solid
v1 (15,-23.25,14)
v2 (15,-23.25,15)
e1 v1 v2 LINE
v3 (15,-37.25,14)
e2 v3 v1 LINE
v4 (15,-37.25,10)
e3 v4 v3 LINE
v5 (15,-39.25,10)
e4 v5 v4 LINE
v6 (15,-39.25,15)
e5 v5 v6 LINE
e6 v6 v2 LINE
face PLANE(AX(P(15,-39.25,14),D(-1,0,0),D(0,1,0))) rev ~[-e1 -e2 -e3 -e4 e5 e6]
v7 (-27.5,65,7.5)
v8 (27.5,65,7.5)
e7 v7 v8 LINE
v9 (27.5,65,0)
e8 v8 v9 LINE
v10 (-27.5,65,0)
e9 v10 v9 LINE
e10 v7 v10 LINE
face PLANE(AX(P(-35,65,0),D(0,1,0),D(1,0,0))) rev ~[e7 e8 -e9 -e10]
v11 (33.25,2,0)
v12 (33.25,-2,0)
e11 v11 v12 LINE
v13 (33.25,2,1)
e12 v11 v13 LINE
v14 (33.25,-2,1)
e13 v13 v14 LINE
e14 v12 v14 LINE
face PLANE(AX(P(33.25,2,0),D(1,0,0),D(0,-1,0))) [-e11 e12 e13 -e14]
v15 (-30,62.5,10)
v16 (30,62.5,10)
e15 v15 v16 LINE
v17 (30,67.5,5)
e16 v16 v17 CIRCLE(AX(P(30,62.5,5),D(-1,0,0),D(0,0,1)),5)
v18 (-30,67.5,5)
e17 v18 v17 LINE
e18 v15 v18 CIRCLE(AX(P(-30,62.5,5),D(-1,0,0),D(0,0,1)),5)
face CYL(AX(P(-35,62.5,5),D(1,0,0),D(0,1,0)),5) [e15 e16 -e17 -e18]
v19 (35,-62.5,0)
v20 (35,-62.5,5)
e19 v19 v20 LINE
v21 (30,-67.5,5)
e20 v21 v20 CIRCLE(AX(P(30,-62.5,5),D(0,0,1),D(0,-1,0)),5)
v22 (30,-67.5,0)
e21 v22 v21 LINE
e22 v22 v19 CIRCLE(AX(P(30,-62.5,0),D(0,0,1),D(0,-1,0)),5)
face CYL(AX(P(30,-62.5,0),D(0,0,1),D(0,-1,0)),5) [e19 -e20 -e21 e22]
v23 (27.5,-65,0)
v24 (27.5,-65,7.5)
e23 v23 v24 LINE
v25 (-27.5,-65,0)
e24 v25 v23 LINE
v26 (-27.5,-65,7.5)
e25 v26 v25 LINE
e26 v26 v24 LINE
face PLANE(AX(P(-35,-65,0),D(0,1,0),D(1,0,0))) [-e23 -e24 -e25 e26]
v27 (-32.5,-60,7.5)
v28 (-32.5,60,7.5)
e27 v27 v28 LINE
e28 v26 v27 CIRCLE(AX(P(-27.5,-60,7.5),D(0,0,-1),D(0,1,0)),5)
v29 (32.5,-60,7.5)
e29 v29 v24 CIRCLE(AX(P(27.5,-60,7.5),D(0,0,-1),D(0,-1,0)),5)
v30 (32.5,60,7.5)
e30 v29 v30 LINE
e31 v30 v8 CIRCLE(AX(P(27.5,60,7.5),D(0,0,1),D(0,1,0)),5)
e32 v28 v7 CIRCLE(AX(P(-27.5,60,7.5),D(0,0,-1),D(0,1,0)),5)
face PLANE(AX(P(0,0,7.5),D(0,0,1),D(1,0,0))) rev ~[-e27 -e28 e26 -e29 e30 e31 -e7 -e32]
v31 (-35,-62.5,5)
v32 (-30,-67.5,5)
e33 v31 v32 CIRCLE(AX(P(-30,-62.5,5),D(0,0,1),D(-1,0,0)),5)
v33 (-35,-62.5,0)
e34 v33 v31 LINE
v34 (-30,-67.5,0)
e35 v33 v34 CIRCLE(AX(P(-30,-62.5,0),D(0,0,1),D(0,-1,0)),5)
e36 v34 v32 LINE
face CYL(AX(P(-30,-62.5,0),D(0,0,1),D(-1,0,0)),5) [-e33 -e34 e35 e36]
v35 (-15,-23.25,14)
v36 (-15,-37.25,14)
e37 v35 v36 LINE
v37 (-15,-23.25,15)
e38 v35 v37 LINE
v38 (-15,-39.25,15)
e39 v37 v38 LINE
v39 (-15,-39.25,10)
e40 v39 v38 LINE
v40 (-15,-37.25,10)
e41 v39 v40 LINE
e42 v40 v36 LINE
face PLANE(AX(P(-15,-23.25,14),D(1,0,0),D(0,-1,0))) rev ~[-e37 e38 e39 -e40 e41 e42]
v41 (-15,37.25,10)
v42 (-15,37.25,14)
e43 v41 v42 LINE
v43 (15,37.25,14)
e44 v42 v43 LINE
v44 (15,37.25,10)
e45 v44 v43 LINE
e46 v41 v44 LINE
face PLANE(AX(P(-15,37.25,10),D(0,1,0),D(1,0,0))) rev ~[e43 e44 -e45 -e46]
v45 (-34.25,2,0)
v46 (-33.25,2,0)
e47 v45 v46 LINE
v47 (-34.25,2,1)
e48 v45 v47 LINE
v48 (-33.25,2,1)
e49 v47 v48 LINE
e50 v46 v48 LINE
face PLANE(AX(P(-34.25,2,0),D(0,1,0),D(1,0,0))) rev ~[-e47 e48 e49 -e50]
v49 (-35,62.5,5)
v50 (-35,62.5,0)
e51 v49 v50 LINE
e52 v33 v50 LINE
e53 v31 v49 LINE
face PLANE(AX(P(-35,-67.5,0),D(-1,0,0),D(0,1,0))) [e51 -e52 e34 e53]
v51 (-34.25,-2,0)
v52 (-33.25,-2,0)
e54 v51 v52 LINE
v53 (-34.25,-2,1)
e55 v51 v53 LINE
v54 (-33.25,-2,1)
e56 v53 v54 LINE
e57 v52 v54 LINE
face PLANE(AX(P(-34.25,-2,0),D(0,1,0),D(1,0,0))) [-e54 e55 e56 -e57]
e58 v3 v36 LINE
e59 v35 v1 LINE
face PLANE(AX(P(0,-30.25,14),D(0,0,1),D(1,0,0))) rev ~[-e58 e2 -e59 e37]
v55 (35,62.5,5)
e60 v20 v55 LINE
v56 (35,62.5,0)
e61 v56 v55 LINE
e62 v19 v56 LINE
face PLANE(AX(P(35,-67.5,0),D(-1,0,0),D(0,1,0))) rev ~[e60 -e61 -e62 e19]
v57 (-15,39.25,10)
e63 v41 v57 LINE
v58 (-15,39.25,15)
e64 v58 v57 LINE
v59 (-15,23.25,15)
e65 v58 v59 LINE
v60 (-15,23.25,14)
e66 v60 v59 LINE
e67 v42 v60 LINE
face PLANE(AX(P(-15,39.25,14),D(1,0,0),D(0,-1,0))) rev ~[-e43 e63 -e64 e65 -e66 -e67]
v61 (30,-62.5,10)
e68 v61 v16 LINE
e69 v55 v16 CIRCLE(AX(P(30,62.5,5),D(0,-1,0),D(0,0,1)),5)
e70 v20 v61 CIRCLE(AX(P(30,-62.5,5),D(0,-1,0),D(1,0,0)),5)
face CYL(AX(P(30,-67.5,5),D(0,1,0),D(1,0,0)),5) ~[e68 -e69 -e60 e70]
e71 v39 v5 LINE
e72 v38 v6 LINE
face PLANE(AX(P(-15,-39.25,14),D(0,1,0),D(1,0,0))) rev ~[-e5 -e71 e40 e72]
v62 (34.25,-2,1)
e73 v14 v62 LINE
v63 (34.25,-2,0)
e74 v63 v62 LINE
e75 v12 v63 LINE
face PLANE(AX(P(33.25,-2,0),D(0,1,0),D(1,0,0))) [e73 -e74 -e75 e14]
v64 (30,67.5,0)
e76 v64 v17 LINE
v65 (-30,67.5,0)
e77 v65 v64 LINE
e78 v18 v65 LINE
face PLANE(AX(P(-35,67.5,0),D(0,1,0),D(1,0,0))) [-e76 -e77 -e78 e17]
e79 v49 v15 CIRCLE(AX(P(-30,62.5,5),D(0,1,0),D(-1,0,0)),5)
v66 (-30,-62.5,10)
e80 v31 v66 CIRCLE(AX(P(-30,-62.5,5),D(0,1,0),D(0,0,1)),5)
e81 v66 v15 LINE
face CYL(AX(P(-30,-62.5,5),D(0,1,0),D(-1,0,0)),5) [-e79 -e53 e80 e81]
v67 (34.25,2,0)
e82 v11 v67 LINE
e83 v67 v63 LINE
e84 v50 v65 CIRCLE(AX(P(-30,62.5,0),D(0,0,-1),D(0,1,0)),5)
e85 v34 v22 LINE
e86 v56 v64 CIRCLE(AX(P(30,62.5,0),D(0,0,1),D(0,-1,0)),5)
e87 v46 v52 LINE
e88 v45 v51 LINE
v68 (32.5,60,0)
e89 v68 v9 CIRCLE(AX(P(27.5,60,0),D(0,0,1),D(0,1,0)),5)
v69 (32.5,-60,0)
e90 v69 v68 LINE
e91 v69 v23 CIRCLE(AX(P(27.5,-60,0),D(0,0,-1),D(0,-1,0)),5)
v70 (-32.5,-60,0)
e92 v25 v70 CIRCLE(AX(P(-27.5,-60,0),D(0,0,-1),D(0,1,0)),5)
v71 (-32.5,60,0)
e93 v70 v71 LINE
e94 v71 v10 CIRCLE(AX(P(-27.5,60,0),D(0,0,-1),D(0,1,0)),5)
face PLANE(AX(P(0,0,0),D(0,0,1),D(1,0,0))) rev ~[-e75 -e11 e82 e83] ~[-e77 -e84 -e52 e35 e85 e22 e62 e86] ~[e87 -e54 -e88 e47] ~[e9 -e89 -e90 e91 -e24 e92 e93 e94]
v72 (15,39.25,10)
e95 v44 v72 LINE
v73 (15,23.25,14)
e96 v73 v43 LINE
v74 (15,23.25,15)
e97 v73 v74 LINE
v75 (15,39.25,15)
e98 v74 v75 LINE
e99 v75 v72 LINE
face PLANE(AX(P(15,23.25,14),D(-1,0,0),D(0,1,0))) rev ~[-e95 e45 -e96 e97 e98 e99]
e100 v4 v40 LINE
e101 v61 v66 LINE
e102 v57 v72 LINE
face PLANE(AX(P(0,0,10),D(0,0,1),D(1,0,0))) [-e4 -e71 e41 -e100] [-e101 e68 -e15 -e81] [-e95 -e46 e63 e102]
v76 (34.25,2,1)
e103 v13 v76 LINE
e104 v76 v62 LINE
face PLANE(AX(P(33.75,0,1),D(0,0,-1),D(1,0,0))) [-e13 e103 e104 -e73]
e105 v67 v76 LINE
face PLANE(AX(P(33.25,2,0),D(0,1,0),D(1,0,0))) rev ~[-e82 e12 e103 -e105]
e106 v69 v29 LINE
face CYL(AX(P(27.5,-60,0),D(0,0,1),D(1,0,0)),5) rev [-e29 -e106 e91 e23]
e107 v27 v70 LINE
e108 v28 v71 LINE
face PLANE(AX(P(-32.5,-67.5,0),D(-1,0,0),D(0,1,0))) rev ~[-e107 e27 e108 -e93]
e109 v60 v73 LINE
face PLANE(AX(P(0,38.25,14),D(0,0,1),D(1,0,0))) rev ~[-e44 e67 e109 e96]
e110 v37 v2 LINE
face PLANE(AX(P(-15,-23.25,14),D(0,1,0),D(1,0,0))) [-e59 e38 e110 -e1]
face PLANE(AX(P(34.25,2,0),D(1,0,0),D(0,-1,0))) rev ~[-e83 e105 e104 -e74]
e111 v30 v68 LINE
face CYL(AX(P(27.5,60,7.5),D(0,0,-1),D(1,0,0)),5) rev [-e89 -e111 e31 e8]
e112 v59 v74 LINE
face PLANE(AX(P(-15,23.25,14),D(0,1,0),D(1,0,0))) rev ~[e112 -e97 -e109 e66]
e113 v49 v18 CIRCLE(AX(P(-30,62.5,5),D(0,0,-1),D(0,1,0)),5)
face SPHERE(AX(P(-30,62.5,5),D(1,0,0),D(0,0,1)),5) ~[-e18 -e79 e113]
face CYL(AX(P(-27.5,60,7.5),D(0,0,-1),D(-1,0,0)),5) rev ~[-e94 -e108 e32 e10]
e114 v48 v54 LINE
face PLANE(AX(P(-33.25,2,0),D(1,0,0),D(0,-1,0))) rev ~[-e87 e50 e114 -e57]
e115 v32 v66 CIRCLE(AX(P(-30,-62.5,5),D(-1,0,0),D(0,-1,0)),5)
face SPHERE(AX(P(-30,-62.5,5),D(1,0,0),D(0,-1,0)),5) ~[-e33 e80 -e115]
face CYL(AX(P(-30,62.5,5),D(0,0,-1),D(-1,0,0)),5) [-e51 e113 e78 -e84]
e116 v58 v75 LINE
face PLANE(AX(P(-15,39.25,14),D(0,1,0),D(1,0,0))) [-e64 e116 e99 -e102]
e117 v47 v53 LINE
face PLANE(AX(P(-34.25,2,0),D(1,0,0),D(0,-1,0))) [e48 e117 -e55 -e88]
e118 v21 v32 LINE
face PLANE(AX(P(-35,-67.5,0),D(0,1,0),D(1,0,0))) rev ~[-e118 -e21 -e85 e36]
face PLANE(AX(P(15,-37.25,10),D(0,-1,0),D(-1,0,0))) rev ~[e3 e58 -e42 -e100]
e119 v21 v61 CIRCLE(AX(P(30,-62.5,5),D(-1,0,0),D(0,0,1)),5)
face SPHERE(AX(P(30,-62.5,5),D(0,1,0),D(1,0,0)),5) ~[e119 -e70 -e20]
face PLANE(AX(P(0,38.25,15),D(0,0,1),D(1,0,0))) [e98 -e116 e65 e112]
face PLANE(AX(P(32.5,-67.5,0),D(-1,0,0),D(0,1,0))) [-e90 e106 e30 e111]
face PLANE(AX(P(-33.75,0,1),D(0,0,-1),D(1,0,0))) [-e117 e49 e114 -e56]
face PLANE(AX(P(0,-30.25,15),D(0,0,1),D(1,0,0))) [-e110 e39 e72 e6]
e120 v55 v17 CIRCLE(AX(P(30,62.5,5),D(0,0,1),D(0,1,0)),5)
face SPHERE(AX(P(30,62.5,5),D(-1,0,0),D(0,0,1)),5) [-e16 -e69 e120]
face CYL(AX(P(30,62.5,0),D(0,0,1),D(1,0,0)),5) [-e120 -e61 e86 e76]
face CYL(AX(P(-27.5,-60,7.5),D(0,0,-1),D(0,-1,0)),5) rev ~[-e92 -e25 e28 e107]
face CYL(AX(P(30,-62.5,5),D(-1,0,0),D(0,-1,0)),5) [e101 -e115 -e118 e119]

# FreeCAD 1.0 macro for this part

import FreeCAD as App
import Part
import Sketcher

V = App.Vector
Q = App.Units.Quantity


def edges_at(feature, points):
    """Names of the edges that pass closest to the given points."""
    edges = feature.Shape.Edges
    near = lambda p: min(range(len(edges)), key=lambda i: edges[i].distToShape(Part.Vertex(*p))[0])
    return sorted({f"Edge{near(p) + 1}" for p in points})


def faces_at(feature, points):
    """Names of the faces that lie closest to the given points."""
    faces = feature.Shape.Faces
    near = lambda p: min(range(len(faces)), key=lambda i: faces[i].distToShape(Part.Vertex(*p))[0])
    return sorted({f"Face{near(p) + 1}" for p in points})

doc = App.newDocument("Part")
body = doc.addObject("PartDesign::Body", "Body")

# Sketch on XY plane
sketch1 = body.newObject("Sketcher::SketchObject", "Sketch")
sketch1.AttachmentSupport = (doc.getObject("XY_Plane"), [""])
sketch1.MapMode = "FlatFace"
sketch1.addGeometry([
    Part.LineSegment(V(-35, 67.5, 0), V(-35, -67.5, 0)),
    Part.LineSegment(V(-35, -67.5, 0), V(35, -67.5, 0)),
    Part.LineSegment(V(35, -67.5, 0), V(35, 67.5, 0)),
    Part.LineSegment(V(35, 67.5, 0), V(-35, 67.5, 0)),
], False)
sketch1.addConstraint([
    Sketcher.Constraint("Coincident", 0, 2, 1, 1),
    Sketcher.Constraint("Coincident", 1, 2, 2, 1),
    Sketcher.Constraint("Coincident", 2, 2, 3, 1),
    Sketcher.Constraint("Coincident", 3, 2, 0, 1),
    Sketcher.Constraint("Vertical", 0),
    Sketcher.Constraint("Horizontal", 1),
    Sketcher.Constraint("Vertical", 2),
    Sketcher.Constraint("Horizontal", 3),
    Sketcher.Constraint("Symmetric", 0, 2, 2, 2, -1, 1),
    Sketcher.Constraint("DistanceX", 1, 1, 1, 2, Q("70 mm")),
    Sketcher.Constraint("DistanceY", 0, 2, 0, 1, Q("135 mm")),
])
pad1 = body.newObject("PartDesign::Pad", "Pad")
pad1.Profile = sketch1
pad1.Length = 10
doc.recompute()

thickness = body.newObject("PartDesign::Thickness", "Thickness")
thickness.Base = (pad1, faces_at(pad1, [(0, 0, 0)]))
thickness.Value = 2.5
thickness.Reversed = True
thickness.Join = "Arc"
doc.recompute()

fillet = body.newObject("PartDesign::Fillet", "Fillet")
fillet.Base = (thickness, edges_at(thickness, [(0, 67.5, 10), (35, 0, 10), (35, 67.5, 5)]))
fillet.Radius = 5
doc.recompute()

fillet2 = body.newObject("PartDesign::Fillet", "Fillet001")
fillet2.Base = (fillet, edges_at(fillet, [(33.536, -67.5, 8.536), (-2.5, -67.5, 10)]))
fillet2.Radius = 5
doc.recompute()

fillet3 = body.newObject("PartDesign::Fillet", "Fillet002")
fillet3.Base = (fillet2, edges_at(fillet2, [(-35, 0, 10), (-35, -66.036, 8.536)]))
fillet3.Radius = 5
doc.recompute()

fillet4 = body.newObject("PartDesign::Fillet", "Fillet003")
fillet4.Base = (fillet3, edges_at(fillet3, [
    (32.5, 65, 3.75),
    (-32.5, 65, 3.75),
    (32.5, -65, 3.75),
    (-32.5, -65, 3.75),
]))
fillet4.Radius = 5

# Sketch on XY plane
sketch2 = body.newObject("Sketcher::SketchObject", "Sketch001")
sketch2.AttachmentSupport = (doc.getObject("XY_Plane"), [""])
sketch2.MapMode = "FlatFace"
sketch2.addGeometry([
    Part.LineSegment(V(-34.25, -2, 0), V(-34.25, 2, 0)),  # 0
    Part.LineSegment(V(-34.25, 2, 0), V(-33.25, 2, 0)),  # 1
    Part.LineSegment(V(-33.25, 2, 0), V(-33.25, -2, 0)),  # 2
    Part.LineSegment(V(-33.25, -2, 0), V(-34.25, -2, 0)),  # 3
    Part.LineSegment(V(33.25, -2, 0), V(33.25, 2, 0)),  # 4
    Part.LineSegment(V(33.25, 2, 0), V(34.25, 2, 0)),  # 5
    Part.LineSegment(V(34.25, 2, 0), V(34.25, -2, 0)),  # 6
    Part.LineSegment(V(34.25, -2, 0), V(33.25, -2, 0)),  # 7
], False)
sketch2.addConstraint([
    Sketcher.Constraint("Coincident", 0, 2, 1, 1),
    Sketcher.Constraint("Coincident", 1, 2, 2, 1),
    Sketcher.Constraint("Coincident", 2, 2, 3, 1),
    Sketcher.Constraint("Coincident", 3, 2, 0, 1),
    Sketcher.Constraint("Coincident", 4, 2, 5, 1),
    Sketcher.Constraint("Coincident", 5, 2, 6, 1),
    Sketcher.Constraint("Coincident", 6, 2, 7, 1),
    Sketcher.Constraint("Coincident", 7, 2, 4, 1),
    Sketcher.Constraint("Vertical", 0),
    Sketcher.Constraint("Horizontal", 1),
    Sketcher.Constraint("Vertical", 2),
    Sketcher.Constraint("Horizontal", 3),
    Sketcher.Constraint("Vertical", 4),
    Sketcher.Constraint("Horizontal", 5),
    Sketcher.Constraint("Vertical", 6),
    Sketcher.Constraint("Horizontal", 7),
    Sketcher.Constraint("Symmetric", 2, 2, 4, 2, -1, 1),
    Sketcher.Constraint("Symmetric", 0, 2, 6, 2, -1, 1),
    Sketcher.Constraint("Horizontal", 1, 2, 4, 2),
    Sketcher.Constraint("DistanceX", 1, 1, 1, 2, Q("1 mm")),
    Sketcher.Constraint("DistanceY", 0, 1, 0, 2, Q("4 mm")),
    Sketcher.Constraint("DistanceX", 1, 2, 4, 2, Q("66.5 mm")),
])
pocket1 = body.newObject("PartDesign::Pocket", "Pocket")
pocket1.Profile = sketch2
pocket1.Length = 1
pocket1.Reversed = True

# Sketch on XY plane
sketch3 = body.newObject("Sketcher::SketchObject", "Sketch002")
sketch3.AttachmentSupport = (doc.getObject("XY_Plane"), [""])
sketch3.MapMode = "FlatFace"
sketch3.AttachmentOffset = App.Placement(V(0, 0, 10), App.Rotation())
sketch3.addGeometry([
    Part.LineSegment(V(-15, 39.25, 0), V(-15, 37.25, 0)),  # 0
    Part.LineSegment(V(-15, 37.25, 0), V(15, 37.25, 0)),  # 1
    Part.LineSegment(V(15, 37.25, 0), V(15, 39.25, 0)),  # 2
    Part.LineSegment(V(15, 39.25, 0), V(-15, 39.25, 0)),  # 3
    Part.LineSegment(V(-15, -37.25, 0), V(-15, -39.25, 0)),  # 4
    Part.LineSegment(V(-15, -39.25, 0), V(15, -39.25, 0)),  # 5
    Part.LineSegment(V(15, -39.25, 0), V(15, -37.25, 0)),  # 6
    Part.LineSegment(V(15, -37.25, 0), V(-15, -37.25, 0)),  # 7
], False)
sketch3.addConstraint([
    Sketcher.Constraint("Coincident", 0, 2, 1, 1),
    Sketcher.Constraint("Coincident", 1, 2, 2, 1),
    Sketcher.Constraint("Coincident", 2, 2, 3, 1),
    Sketcher.Constraint("Coincident", 3, 2, 0, 1),
    Sketcher.Constraint("Coincident", 4, 2, 5, 1),
    Sketcher.Constraint("Coincident", 5, 2, 6, 1),
    Sketcher.Constraint("Coincident", 6, 2, 7, 1),
    Sketcher.Constraint("Coincident", 7, 2, 4, 1),
    Sketcher.Constraint("Vertical", 0),
    Sketcher.Constraint("Horizontal", 1),
    Sketcher.Constraint("Vertical", 2),
    Sketcher.Constraint("Horizontal", 3),
    Sketcher.Constraint("Vertical", 4),
    Sketcher.Constraint("Horizontal", 5),
    Sketcher.Constraint("Vertical", 6),
    Sketcher.Constraint("Horizontal", 7),
    Sketcher.Constraint("Symmetric", 2, 2, 4, 2, -1, 1),
    Sketcher.Constraint("Symmetric", 0, 2, 6, 2, -1, 1),
    Sketcher.Constraint("Vertical", 3, 2, 4, 2),
    Sketcher.Constraint("DistanceX", 1, 1, 1, 2, Q("30 mm")),
    Sketcher.Constraint("DistanceY", 0, 2, 0, 1, Q("2 mm")),
    Sketcher.Constraint("DistanceY", 4, 2, 0, 2, Q("76.5 mm")),
])
pad2 = body.newObject("PartDesign::Pad", "Pad001")
pad2.Profile = sketch3
pad2.Length = 4

# Sketch on XY plane
sketch4 = body.newObject("Sketcher::SketchObject", "Sketch003")
sketch4.AttachmentSupport = (doc.getObject("XY_Plane"), [""])
sketch4.MapMode = "FlatFace"
sketch4.AttachmentOffset = App.Placement(V(0, 0, 14), App.Rotation())
sketch4.addGeometry([
    Part.LineSegment(V(-15, -23.25, 0), V(-15, -39.25, 0)),
    Part.LineSegment(V(-15, -39.25, 0), V(15, -39.25, 0)),
    Part.LineSegment(V(15, -39.25, 0), V(15, -23.25, 0)),
    Part.LineSegment(V(15, -23.25, 0), V(-15, -23.25, 0)),
], False)
sketch4.addConstraint([
    Sketcher.Constraint("Coincident", 0, 2, 1, 1),
    Sketcher.Constraint("Coincident", 1, 2, 2, 1),
    Sketcher.Constraint("Coincident", 2, 2, 3, 1),
    Sketcher.Constraint("Coincident", 3, 2, 0, 1),
    Sketcher.Constraint("Vertical", 0),
    Sketcher.Constraint("Horizontal", 1),
    Sketcher.Constraint("Vertical", 2),
    Sketcher.Constraint("Horizontal", 3),
    Sketcher.Constraint("DistanceX", 1, 1, 1, 2, Q("30 mm")),
    Sketcher.Constraint("DistanceY", 0, 2, 0, 1, Q("16 mm")),
    Sketcher.Constraint("DistanceX", 0, 2, -1, 1, Q("15 mm")),
    Sketcher.Constraint("DistanceY", 0, 2, -1, 1, Q("39.25 mm")),
])
pad3 = body.newObject("PartDesign::Pad", "Pad002")
pad3.Profile = sketch4
pad3.Length = 1

# Sketch on XY plane
sketch5 = body.newObject("Sketcher::SketchObject", "Sketch004")
sketch5.AttachmentSupport = (doc.getObject("XY_Plane"), [""])
sketch5.MapMode = "FlatFace"
sketch5.AttachmentOffset = App.Placement(V(0, 0, 14), App.Rotation())
sketch5.addGeometry([
    Part.LineSegment(V(-15, 39.25, 0), V(-15, 23.25, 0)),
    Part.LineSegment(V(-15, 23.25, 0), V(15, 23.25, 0)),
    Part.LineSegment(V(15, 23.25, 0), V(15, 39.25, 0)),
    Part.LineSegment(V(15, 39.25, 0), V(-15, 39.25, 0)),
], False)
sketch5.addConstraint([
    Sketcher.Constraint("Coincident", 0, 2, 1, 1),
    Sketcher.Constraint("Coincident", 1, 2, 2, 1),
    Sketcher.Constraint("Coincident", 2, 2, 3, 1),
    Sketcher.Constraint("Coincident", 3, 2, 0, 1),
    Sketcher.Constraint("Vertical", 0),
    Sketcher.Constraint("Horizontal", 1),
    Sketcher.Constraint("Vertical", 2),
    Sketcher.Constraint("Horizontal", 3),
    Sketcher.Constraint("DistanceX", 1, 1, 1, 2, Q("30 mm")),
    Sketcher.Constraint("DistanceY", 0, 2, 0, 1, Q("16 mm")),
    Sketcher.Constraint("DistanceX", 0, 2, -1, 1, Q("15 mm")),
    Sketcher.Constraint("DistanceY", -1, 1, 0, 2, Q("23.25 mm")),
])
pad4 = body.newObject("PartDesign::Pad", "Pad003")
pad4.Profile = sketch5
pad4.Length = 1

doc.recompute()
